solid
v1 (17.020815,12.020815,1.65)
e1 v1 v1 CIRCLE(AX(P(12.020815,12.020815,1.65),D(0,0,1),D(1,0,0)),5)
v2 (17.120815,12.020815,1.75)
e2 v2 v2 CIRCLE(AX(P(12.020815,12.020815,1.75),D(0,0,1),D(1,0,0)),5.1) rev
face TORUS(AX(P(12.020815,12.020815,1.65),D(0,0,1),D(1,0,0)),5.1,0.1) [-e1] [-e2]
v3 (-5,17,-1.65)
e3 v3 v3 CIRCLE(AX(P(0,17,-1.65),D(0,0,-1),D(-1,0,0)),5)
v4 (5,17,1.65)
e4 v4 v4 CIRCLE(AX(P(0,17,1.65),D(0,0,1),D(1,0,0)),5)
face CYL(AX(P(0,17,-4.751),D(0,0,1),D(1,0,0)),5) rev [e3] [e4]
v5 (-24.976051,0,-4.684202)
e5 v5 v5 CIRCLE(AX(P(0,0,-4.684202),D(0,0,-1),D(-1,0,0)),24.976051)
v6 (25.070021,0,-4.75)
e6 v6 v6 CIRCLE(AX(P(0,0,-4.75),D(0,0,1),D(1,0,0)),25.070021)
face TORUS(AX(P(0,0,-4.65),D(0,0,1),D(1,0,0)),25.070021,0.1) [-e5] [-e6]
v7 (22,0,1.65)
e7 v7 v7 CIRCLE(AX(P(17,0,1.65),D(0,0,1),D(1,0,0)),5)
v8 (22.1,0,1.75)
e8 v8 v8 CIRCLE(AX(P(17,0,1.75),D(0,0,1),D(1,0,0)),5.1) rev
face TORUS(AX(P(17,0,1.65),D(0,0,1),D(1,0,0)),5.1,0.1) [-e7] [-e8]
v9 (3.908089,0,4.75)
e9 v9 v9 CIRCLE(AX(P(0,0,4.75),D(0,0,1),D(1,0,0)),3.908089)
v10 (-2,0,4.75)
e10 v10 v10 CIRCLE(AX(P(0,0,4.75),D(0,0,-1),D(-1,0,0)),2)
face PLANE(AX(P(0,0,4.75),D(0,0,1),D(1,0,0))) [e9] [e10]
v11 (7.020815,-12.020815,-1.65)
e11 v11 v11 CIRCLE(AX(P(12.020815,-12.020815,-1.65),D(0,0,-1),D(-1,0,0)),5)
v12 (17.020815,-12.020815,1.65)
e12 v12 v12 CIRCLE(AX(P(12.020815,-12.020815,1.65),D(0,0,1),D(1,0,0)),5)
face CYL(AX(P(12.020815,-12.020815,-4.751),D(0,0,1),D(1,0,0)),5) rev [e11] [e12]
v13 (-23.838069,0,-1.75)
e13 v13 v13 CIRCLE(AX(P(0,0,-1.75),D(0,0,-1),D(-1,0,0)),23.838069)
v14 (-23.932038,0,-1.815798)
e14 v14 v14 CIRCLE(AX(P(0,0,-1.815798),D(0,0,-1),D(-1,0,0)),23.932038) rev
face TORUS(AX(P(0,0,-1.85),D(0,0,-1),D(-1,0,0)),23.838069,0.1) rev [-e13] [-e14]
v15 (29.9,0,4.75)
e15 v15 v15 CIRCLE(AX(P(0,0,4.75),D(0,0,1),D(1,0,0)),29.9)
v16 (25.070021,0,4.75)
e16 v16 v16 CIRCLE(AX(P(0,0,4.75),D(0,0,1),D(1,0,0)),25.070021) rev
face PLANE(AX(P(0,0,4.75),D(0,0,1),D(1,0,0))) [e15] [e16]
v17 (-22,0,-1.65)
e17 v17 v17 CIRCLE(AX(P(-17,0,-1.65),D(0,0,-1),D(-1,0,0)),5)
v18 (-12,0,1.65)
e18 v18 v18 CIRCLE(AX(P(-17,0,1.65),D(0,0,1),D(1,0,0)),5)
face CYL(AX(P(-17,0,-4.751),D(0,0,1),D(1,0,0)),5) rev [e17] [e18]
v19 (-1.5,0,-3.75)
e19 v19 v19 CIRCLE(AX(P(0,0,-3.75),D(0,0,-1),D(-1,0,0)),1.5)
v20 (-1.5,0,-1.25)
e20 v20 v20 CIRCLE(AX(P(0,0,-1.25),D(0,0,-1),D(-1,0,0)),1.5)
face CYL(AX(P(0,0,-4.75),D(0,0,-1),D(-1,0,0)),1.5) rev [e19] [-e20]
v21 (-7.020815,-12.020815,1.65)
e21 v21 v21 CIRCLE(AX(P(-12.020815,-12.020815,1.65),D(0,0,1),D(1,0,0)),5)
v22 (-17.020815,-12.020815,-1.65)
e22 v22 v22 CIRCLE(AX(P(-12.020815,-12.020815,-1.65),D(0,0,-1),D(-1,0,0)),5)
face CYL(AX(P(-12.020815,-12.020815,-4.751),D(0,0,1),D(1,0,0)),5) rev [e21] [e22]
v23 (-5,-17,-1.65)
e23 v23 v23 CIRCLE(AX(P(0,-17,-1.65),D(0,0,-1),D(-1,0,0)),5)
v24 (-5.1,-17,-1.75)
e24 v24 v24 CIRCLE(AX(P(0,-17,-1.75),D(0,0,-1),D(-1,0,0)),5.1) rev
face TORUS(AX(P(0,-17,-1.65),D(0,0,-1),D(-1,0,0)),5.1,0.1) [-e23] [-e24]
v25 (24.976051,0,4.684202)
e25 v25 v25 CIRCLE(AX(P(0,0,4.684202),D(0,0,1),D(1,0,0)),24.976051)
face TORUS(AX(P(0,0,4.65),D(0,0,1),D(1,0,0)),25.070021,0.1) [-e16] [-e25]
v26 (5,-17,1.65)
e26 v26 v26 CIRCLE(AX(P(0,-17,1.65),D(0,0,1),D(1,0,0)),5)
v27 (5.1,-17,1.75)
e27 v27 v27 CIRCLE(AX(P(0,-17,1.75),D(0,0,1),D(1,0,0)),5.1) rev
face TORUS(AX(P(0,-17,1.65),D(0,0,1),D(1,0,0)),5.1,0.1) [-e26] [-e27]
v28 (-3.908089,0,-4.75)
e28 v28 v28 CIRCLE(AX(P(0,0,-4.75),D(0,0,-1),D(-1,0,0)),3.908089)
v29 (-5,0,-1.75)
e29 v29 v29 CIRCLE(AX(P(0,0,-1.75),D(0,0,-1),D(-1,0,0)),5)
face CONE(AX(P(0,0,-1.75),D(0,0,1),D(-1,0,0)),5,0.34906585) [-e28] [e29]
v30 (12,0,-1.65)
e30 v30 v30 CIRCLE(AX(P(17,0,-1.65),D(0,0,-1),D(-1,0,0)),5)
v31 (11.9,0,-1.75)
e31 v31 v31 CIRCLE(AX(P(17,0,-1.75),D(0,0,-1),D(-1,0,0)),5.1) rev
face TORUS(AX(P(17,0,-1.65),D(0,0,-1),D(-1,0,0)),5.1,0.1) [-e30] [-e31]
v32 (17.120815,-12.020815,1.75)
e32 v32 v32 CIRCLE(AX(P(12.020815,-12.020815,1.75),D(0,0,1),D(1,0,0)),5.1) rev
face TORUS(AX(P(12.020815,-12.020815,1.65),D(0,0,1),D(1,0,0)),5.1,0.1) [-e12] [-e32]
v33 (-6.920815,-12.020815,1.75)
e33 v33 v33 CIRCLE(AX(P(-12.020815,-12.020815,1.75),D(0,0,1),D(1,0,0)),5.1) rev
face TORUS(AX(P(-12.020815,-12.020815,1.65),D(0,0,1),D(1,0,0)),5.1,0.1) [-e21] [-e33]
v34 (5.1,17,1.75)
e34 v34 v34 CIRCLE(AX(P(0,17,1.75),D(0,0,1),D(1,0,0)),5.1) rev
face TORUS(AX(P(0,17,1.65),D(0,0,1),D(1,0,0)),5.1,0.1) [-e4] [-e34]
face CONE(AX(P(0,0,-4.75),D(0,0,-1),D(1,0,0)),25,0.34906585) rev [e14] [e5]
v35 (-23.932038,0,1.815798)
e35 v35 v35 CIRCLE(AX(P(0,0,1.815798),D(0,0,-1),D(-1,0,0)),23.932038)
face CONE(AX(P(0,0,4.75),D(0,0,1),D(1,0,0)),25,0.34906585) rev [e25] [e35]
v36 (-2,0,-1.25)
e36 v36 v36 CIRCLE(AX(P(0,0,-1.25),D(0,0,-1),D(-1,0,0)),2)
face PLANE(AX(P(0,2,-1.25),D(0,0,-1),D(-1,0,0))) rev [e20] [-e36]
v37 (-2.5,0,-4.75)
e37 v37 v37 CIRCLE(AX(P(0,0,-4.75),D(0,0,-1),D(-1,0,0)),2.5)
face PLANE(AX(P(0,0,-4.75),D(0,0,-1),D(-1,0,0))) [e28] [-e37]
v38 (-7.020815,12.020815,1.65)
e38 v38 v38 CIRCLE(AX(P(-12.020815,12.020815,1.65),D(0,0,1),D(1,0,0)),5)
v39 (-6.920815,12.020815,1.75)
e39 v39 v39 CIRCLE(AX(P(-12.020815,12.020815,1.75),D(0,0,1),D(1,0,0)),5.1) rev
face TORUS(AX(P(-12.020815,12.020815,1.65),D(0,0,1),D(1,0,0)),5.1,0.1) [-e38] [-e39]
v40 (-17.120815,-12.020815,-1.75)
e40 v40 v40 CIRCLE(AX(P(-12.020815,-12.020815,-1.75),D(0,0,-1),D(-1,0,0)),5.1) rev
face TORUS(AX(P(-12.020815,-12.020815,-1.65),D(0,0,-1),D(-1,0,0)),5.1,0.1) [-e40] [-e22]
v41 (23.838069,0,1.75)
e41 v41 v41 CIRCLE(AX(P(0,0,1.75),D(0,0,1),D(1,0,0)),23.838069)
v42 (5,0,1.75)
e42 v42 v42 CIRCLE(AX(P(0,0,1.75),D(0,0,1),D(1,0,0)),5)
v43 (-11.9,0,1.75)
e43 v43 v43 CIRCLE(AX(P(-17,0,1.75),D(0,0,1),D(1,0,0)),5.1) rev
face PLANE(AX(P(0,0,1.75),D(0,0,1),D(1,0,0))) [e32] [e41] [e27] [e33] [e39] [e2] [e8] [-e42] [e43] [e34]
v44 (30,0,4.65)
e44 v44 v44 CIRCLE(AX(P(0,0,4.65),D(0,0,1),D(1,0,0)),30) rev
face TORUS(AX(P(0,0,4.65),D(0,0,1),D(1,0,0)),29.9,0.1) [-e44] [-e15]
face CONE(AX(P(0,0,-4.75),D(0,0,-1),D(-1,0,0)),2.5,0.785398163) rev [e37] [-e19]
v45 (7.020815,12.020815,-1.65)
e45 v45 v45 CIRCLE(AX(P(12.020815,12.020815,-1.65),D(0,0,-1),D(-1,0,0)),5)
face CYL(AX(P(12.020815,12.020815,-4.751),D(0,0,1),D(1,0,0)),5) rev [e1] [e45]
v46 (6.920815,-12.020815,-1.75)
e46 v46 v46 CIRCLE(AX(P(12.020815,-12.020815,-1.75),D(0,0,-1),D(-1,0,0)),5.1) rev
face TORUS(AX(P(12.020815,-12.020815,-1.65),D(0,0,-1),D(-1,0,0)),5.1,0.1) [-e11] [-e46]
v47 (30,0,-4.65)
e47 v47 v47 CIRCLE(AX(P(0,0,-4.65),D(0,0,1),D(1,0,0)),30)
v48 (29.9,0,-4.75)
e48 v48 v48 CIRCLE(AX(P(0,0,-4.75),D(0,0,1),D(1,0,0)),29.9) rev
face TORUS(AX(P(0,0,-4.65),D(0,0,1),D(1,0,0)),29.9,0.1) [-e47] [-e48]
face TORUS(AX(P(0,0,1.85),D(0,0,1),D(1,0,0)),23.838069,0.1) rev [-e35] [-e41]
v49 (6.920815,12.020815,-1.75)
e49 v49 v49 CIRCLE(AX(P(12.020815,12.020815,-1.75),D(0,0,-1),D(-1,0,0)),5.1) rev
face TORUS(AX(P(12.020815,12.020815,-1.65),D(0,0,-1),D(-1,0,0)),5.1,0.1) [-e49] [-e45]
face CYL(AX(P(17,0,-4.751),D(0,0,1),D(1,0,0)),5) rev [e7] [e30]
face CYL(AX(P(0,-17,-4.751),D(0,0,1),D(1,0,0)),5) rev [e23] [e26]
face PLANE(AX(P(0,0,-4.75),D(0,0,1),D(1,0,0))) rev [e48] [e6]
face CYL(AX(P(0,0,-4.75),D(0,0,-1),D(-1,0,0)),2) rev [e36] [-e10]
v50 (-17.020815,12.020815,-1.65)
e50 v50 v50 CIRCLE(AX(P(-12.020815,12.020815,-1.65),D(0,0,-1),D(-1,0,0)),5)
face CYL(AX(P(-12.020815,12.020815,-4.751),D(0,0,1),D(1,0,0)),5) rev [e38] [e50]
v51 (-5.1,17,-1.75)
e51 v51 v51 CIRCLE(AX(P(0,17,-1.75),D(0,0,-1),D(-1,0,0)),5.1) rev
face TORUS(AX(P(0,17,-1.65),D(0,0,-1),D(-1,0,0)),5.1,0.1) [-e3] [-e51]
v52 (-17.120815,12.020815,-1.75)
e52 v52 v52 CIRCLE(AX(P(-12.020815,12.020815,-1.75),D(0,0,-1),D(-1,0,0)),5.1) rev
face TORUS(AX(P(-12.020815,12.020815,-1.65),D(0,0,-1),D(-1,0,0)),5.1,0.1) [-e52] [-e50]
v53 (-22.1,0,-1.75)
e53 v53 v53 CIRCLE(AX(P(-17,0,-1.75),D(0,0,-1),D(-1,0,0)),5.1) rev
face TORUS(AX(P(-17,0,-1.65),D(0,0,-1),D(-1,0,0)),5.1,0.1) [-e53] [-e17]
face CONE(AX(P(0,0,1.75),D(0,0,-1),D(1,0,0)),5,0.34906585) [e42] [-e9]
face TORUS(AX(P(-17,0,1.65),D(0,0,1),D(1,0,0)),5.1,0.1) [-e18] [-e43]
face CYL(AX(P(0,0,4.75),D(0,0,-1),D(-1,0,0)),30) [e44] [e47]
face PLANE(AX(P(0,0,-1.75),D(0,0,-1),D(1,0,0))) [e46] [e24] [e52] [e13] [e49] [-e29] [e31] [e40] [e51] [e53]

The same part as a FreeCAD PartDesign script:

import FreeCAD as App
import Part
import Sketcher

V = App.Vector
Q = App.Units.Quantity


def edges_at(feature, points):
    """Names of the edges that pass closest to the given points."""
    edges = feature.Shape.Edges
    near = lambda p: min(range(len(edges)), key=lambda i: edges[i].distToShape(Part.Vertex(*p))[0])
    return sorted({f"Edge{near(p) + 1}" for p in points})

doc = App.newDocument("Part")
body = doc.addObject("PartDesign::Body", "Body")

# Sketch on XY plane
sketch1 = body.newObject("Sketcher::SketchObject", "Sketch")
sketch1.AttachmentSupport = (doc.getObject("XY_Plane"), [""])
sketch1.MapMode = "FlatFace"
sketch1.addGeometry(Part.Circle(V(0, 0, 0), V(0, 0, 1), 30), False)
sketch1.addConstraint([
    Sketcher.Constraint("Coincident", 0, 3, -1, 1),
    Sketcher.Constraint("Diameter", 0, 60.0),
])
pad1 = body.newObject("PartDesign::Pad", "Pad")
pad1.Profile = sketch1
pad1.Length = 9.5
pad1.Midplane = True

# Sketch on XY plane
sketch2 = body.newObject("Sketcher::SketchObject", "Sketch001")
sketch2.AttachmentSupport = (doc.getObject("XY_Plane"), [""])
sketch2.MapMode = "FlatFace"
sketch2.AttachmentOffset = App.Placement(V(0, 0, 4.75), App.Rotation())
sketch2.addGeometry(Part.Circle(V(0, 0, 0), V(0, 0, 1), 25), False)
sketch2.addConstraint([
    Sketcher.Constraint("Coincident", 0, 3, -1, 1),
    Sketcher.Constraint("Diameter", 0, 50.0),
])
pocket1 = body.newObject("PartDesign::Pocket", "Pocket")
pocket1.Profile = sketch2
pocket1.Length = 3
pocket1.TaperAngle = -20
doc.recompute()

mirrored = body.newObject("PartDesign::Mirrored", "Mirrored")
mirrored.Originals = [pocket1]
mirrored.MirrorPlane = (doc.getObject("XY_Plane"), [""])
body.Tip = mirrored

# Sketch on XY plane
sketch3 = body.newObject("Sketcher::SketchObject", "Sketch002")
sketch3.AttachmentSupport = (doc.getObject("XY_Plane"), [""])
sketch3.MapMode = "FlatFace"
sketch3.AttachmentOffset = App.Placement(V(0, 0, 1.75), App.Rotation())
sketch3.addGeometry(Part.Circle(V(0, 17, 0), V(0, 0, 1), 5), False)
sketch3.addConstraint([
    Sketcher.Constraint("PointOnObject", 0, 3, -2),
    Sketcher.Constraint("Diameter", 0, 10.0),
    Sketcher.Constraint("DistanceY", -1, 1, 0, 3, 17.0),
])
pocket2 = body.newObject("PartDesign::Pocket", "Pocket001")
pocket2.Profile = sketch3
pocket2.Type = "UpToFirst"

# Sketch on XY plane
sketch4 = body.newObject("Sketcher::SketchObject", "Sketch003")
sketch4.AttachmentSupport = (doc.getObject("XY_Plane"), [""])
sketch4.MapMode = "FlatFace"
sketch4.AttachmentOffset = App.Placement(V(0, 0, 1.75), App.Rotation())
sketch4.addGeometry(Part.Circle(V(12.020815, 12.020815, 0), V(0, 0, 1), 5), False)
sketch4.addConstraint([
    Sketcher.Constraint("Diameter", 0, 10.0),
    Sketcher.Constraint("DistanceX", -1, 1, 0, 3, 12.020815),
    Sketcher.Constraint("DistanceY", -1, 1, 0, 3, 12.020815),
])
pocket3 = body.newObject("PartDesign::Pocket", "Pocket002")
pocket3.Profile = sketch4
pocket3.Type = "UpToFirst"

# Sketch on XY plane
sketch5 = body.newObject("Sketcher::SketchObject", "Sketch004")
sketch5.AttachmentSupport = (doc.getObject("XY_Plane"), [""])
sketch5.MapMode = "FlatFace"
sketch5.AttachmentOffset = App.Placement(V(0, 0, 1.75), App.Rotation())
sketch5.addGeometry(Part.Circle(V(17, 0, 0), V(0, 0, 1), 5), False)
sketch5.addConstraint([
    Sketcher.Constraint("PointOnObject", 0, 3, -1),
    Sketcher.Constraint("Diameter", 0, 10.0),
    Sketcher.Constraint("DistanceX", -1, 1, 0, 3, 17.0),
])
pocket4 = body.newObject("PartDesign::Pocket", "Pocket003")
pocket4.Profile = sketch5
pocket4.Type = "UpToFirst"

# Sketch on XY plane
sketch6 = body.newObject("Sketcher::SketchObject", "Sketch005")
sketch6.AttachmentSupport = (doc.getObject("XY_Plane"), [""])
sketch6.MapMode = "FlatFace"
sketch6.AttachmentOffset = App.Placement(V(0, 0, 1.75), App.Rotation())
sketch6.addGeometry(Part.Circle(V(12.020815, -12.020815, 0), V(0, 0, 1), 5), False)
sketch6.addConstraint([
    Sketcher.Constraint("Diameter", 0, 10.0),
    Sketcher.Constraint("DistanceX", -1, 1, 0, 3, 12.020815),
    Sketcher.Constraint("DistanceY", 0, 3, -1, 1, 12.020815),
])
pocket5 = body.newObject("PartDesign::Pocket", "Pocket004")
pocket5.Profile = sketch6
pocket5.Type = "UpToFirst"

# Sketch on XY plane
sketch7 = body.newObject("Sketcher::SketchObject", "Sketch006")
sketch7.AttachmentSupport = (doc.getObject("XY_Plane"), [""])
sketch7.MapMode = "FlatFace"
sketch7.AttachmentOffset = App.Placement(V(0, 0, 1.75), App.Rotation())
sketch7.addGeometry(Part.Circle(V(0, -17, 0), V(0, 0, 1), 5), False)
sketch7.addConstraint([
    Sketcher.Constraint("PointOnObject", 0, 3, -2),
    Sketcher.Constraint("Diameter", 0, 10.0),
    Sketcher.Constraint("DistanceY", 0, 3, -1, 1, 17.0),
])
pocket6 = body.newObject("PartDesign::Pocket", "Pocket005")
pocket6.Profile = sketch7
pocket6.Type = "UpToFirst"

# Sketch on XY plane
sketch8 = body.newObject("Sketcher::SketchObject", "Sketch007")
sketch8.AttachmentSupport = (doc.getObject("XY_Plane"), [""])
sketch8.MapMode = "FlatFace"
sketch8.AttachmentOffset = App.Placement(V(0, 0, 1.75), App.Rotation())
sketch8.addGeometry(Part.Circle(V(-12.020815, -12.020815, 0), V(0, 0, 1), 5), False)
sketch8.addConstraint([
    Sketcher.Constraint("Diameter", 0, 10.0),
    Sketcher.Constraint("DistanceX", 0, 3, -1, 1, 12.020815),
    Sketcher.Constraint("DistanceY", 0, 3, -1, 1, 12.020815),
])
pocket7 = body.newObject("PartDesign::Pocket", "Pocket006")
pocket7.Profile = sketch8
pocket7.Type = "UpToFirst"

# Sketch on XY plane
sketch9 = body.newObject("Sketcher::SketchObject", "Sketch008")
sketch9.AttachmentSupport = (doc.getObject("XY_Plane"), [""])
sketch9.MapMode = "FlatFace"
sketch9.AttachmentOffset = App.Placement(V(0, 0, 1.75), App.Rotation())
sketch9.addGeometry(Part.Circle(V(-17, 0, 0), V(0, 0, 1), 5), False)
sketch9.addConstraint([
    Sketcher.Constraint("PointOnObject", 0, 3, -1),
    Sketcher.Constraint("Diameter", 0, 10.0),
    Sketcher.Constraint("DistanceX", 0, 3, -1, 1, 17.0),
])
pocket8 = body.newObject("PartDesign::Pocket", "Pocket007")
pocket8.Profile = sketch9
pocket8.Type = "UpToFirst"

# Sketch on XY plane
sketch10 = body.newObject("Sketcher::SketchObject", "Sketch009")
sketch10.AttachmentSupport = (doc.getObject("XY_Plane"), [""])
sketch10.MapMode = "FlatFace"
sketch10.AttachmentOffset = App.Placement(V(0, 0, 1.75), App.Rotation())
sketch10.addGeometry(Part.Circle(V(-12.020815, 12.020815, 0), V(0, 0, 1), 5), False)
sketch10.addConstraint([
    Sketcher.Constraint("Diameter", 0, 10.0),
    Sketcher.Constraint("DistanceX", 0, 3, -1, 1, 12.020815),
    Sketcher.Constraint("DistanceY", -1, 1, 0, 3, 12.020815),
])
pocket9 = body.newObject("PartDesign::Pocket", "Pocket008")
pocket9.Profile = sketch10
pocket9.Type = "UpToFirst"
doc.recompute()

fillet = body.newObject("PartDesign::Fillet", "Fillet")
fillet.Base = (pocket9, edges_at(pocket9, [
    (-25, 0, -4.75),
    (-23.908, 0, -1.75),
    (-30, 0, -4.75),
    (-17.021, 12.021, -1.75),
    (-17.021, 12.021, 1.75),
    (-22, 0, -1.75),
    (-22, 0, 1.75),
    (-17.021, -12.021, -1.75),
    (-17.021, -12.021, 1.75),
    (-5, -17, -1.75),
    (-5, -17, 1.75),
    (7.021, -12.021, -1.75),
    (7.021, -12.021, 1.75),
    (12, 0, -1.75),
    (12, 0, 1.75),
    (7.021, 12.021, -1.75),
    (7.021, 12.021, 1.75),
    (-5, 17, -1.75),
    (-5, 17, 1.75),
    (-30, 0, 4.75),
    (-23.908, 0, 1.75),
    (-25, 0, 4.75),
]))
fillet.Radius = 0.1

# Sketch on XY plane
sketch11 = body.newObject("Sketcher::SketchObject", "Sketch010")
sketch11.AttachmentSupport = (doc.getObject("XY_Plane"), [""])
sketch11.MapMode = "FlatFace"
sketch11.AttachmentOffset = App.Placement(V(0, 0, 1.75), App.Rotation())
sketch11.addGeometry(Part.Circle(V(0, 0, 0), V(0, 0, 1), 5), False)
sketch11.addConstraint([
    Sketcher.Constraint("Coincident", 0, 3, -1, 1),
    Sketcher.Constraint("Diameter", 0, 10.0),
])
pad2 = body.newObject("PartDesign::Pad", "Pad001")
pad2.Profile = sketch11
pad2.Length = 3
pad2.TaperAngle = -20

# Sketch on XY plane
sketch12 = body.newObject("Sketcher::SketchObject", "Sketch011")
sketch12.AttachmentSupport = (doc.getObject("XY_Plane"), [""])
sketch12.MapMode = "FlatFace"
sketch12.AttachmentOffset = App.Placement(V(0, 0, -1.75), App.Rotation())
sketch12.addGeometry(Part.Circle(V(0, 0, 0), V(0, 0, 1), 5), False)
sketch12.addConstraint([
    Sketcher.Constraint("Coincident", 0, 3, -1, 1),
    Sketcher.Constraint("Diameter", 0, 10.0),
])
pad3 = body.newObject("PartDesign::Pad", "Pad002")
pad3.Profile = sketch12
pad3.Length = 3
pad3.Reversed = True
pad3.TaperAngle = -20

# Sketch on YZ plane
sketch13 = body.newObject("Sketcher::SketchObject", "Sketch012")
sketch13.AttachmentSupport = (doc.getObject("YZ_Plane"), [""])
sketch13.MapMode = "FlatFace"
sketch13.addGeometry([
    Part.LineSegment(V(2, -1.25, 0), V(2, 4.75, 0)),  # 0
    Part.LineSegment(V(2, 4.75, 0), V(0, 4.75, 0)),  # 1
    Part.LineSegment(V(0, 4.75, 0), V(0, -4.75, 0)),  # 2
    Part.LineSegment(V(0, -4.75, 0), V(2.5, -4.75, 0)),  # 3
    Part.LineSegment(V(2.5, -4.75, 0), V(1.5, -3.75, 0)),  # 4
    Part.LineSegment(V(1.5, -3.75, 0), V(1.5, -1.25, 0)),  # 5
    Part.LineSegment(V(1.5, -1.25, 0), V(2, -1.25, 0)),  # 6
], False)
sketch13.addConstraint([
    Sketcher.Constraint("Coincident", 0, 2, 1, 1),
    Sketcher.Constraint("Coincident", 1, 2, 2, 1),
    Sketcher.Constraint("Coincident", 2, 2, 3, 1),
    Sketcher.Constraint("Coincident", 3, 2, 4, 1),
    Sketcher.Constraint("Coincident", 4, 2, 5, 1),
    Sketcher.Constraint("Coincident", 5, 2, 6, 1),
    Sketcher.Constraint("Coincident", 6, 2, 0, 1),
    Sketcher.Constraint("Vertical", 0),
    Sketcher.Constraint("Horizontal", 1),
    Sketcher.Constraint("Vertical", 2),
    Sketcher.Constraint("Horizontal", 3),
    Sketcher.Constraint("Vertical", 5),
    Sketcher.Constraint("Horizontal", 6),
    Sketcher.Constraint("Symmetric", 1, 2, 2, 2, -1, 1),
    Sketcher.Constraint("Equal", 3, 5),
    Sketcher.Constraint("DistanceX", 1, 2, 1, 1, 2.0),
    Sketcher.Constraint("DistanceY", 0, 1, 0, 2, 6.0),
    Sketcher.Constraint("Angle", 4, Q("135 deg")),
    Sketcher.Constraint("DistanceX", 3, 1, 3, 2, 2.5),
    Sketcher.Constraint("DistanceX", 6, 1, 6, 2, 0.5),
])
groove = body.newObject("PartDesign::Groove", "Groove")
groove.Profile = sketch13
groove.ReferenceAxis = (sketch13, ["V_Axis"])
groove.Angle = 360

doc.recompute()
